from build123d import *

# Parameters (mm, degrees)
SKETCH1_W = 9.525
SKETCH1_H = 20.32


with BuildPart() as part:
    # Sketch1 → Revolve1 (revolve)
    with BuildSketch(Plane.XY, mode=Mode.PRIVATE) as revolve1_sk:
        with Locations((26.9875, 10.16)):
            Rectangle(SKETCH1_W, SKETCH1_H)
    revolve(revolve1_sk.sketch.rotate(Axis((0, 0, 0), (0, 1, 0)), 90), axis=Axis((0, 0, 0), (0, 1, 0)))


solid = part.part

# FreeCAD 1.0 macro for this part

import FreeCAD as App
import Part
import Sketcher

V = App.Vector
Q = App.Units.Quantity

doc = App.newDocument("Part")
body = doc.addObject("PartDesign::Body", "Body")

sketch1 = body.newObject("Sketcher::SketchObject", "Sketch")
sketch1.AttachmentSupport = (doc.getObject("XY_Plane"), [""])
sketch1.MapMode = "FlatFace"
sketch1.addGeometry([
    Part.LineSegment(V(22, 20, 0), V(22, 0, 0)),
    Part.LineSegment(V(22, 0, 0), V(32, 0, 0)),
    Part.LineSegment(V(32, 0, 0), V(32, 20, 0)),
    Part.LineSegment(V(32, 20, 0), V(22, 20, 0)),
], False)
sketch1.addConstraint([
    Sketcher.Constraint("Coincident", 0, 2, 1, 1),
    Sketcher.Constraint("Coincident", 1, 2, 2, 1),
    Sketcher.Constraint("Coincident", 2, 2, 3, 1),
    Sketcher.Constraint("Coincident", 3, 2, 0, 1),
    Sketcher.Constraint("Vertical", 0),
    Sketcher.Constraint("Horizontal", 1),
    Sketcher.Constraint("Vertical", 2),
    Sketcher.Constraint("Horizontal", 3),
    Sketcher.Constraint("PointOnObject", 0, 2, -1),
    Sketcher.Constraint("DistanceY", 0, 2, 0, 1, Q("0.8 in")),
    Sketcher.Constraint("DistanceX", 1, 1, 1, 2, Q("0.375 in")),
    Sketcher.Constraint("DistanceX", -1, 1, 1, 2, Q("1.25 in")),
])
revolution = body.newObject("PartDesign::Revolution", "Revolution")
revolution.Profile = sketch1
revolution.ReferenceAxis = (sketch1, ["V_Axis"])
revolution.Angle = 360

doc.recompute()
